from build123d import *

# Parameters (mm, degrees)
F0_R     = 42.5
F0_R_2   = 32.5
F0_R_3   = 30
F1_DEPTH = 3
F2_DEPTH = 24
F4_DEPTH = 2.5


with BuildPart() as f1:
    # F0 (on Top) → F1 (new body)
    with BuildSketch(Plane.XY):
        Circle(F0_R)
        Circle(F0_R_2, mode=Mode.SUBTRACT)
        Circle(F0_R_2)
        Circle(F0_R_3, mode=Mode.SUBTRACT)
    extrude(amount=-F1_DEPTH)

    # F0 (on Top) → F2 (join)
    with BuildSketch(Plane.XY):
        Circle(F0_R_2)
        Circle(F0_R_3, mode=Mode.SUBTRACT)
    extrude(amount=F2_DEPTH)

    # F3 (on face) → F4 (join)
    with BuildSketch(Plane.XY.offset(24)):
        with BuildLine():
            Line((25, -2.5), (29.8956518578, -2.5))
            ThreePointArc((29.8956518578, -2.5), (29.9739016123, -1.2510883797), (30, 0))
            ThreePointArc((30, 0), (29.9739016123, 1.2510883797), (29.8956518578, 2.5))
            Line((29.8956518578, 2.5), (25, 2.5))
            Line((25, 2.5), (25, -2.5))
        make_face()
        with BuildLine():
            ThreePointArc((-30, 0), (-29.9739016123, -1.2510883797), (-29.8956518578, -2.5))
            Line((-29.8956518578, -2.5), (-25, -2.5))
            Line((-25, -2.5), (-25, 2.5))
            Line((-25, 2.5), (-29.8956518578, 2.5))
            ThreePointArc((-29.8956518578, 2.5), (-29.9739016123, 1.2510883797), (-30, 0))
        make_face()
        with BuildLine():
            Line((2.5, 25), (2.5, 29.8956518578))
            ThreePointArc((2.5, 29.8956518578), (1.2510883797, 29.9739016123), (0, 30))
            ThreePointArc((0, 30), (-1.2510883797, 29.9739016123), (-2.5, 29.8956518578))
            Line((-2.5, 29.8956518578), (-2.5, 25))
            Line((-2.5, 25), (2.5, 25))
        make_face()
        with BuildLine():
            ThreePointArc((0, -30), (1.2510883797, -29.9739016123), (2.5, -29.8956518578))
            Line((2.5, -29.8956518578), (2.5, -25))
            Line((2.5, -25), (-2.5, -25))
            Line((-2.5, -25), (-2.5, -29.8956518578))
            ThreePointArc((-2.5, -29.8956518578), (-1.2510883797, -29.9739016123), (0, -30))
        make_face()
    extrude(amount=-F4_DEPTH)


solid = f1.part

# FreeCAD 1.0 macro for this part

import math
import FreeCAD as App
import Part
import Sketcher
Q = App.Units.Quantity

doc = App.newDocument("Part")
params = doc.addObject("Spreadsheet::Sheet", "Params")
for row, (alias, value) in enumerate([
    ("sketch1_diameter", "85 mm"),
    ("sketch1_diameter2", "60 mm"),
    ("pad1_length", "3 mm"),
    ("sketch2_diameter", "65 mm"),
    ("sketch2_diameter2", "60 mm"),
    ("pad2_length", "24 mm"),
    ("sketch3_radius", "30 mm"),
    ("sketch3_width", "5 mm"),
    ("pad3_length", "2.5 mm"),
], start=1):
    params.set(f"A{row}", alias)
    params.set(f"B{row}", "=" + value)
    params.setAlias(f"B{row}", alias)

body = doc.addObject("PartDesign::Body", "Body")

sketch1 = body.newObject("Sketcher::SketchObject", "Sketch")
sketch1.AttachmentSupport = (doc.getObject("XY_Plane"), [""])
sketch1.MapMode = "FlatFace"
sketch1.addGeometry(Part.Circle(App.Vector(0, 0, 0), App.Vector(0, 0, 1), 42.5), False)
sketch1.addGeometry(Part.Circle(App.Vector(0, 0, 0), App.Vector(0, 0, 1), 30), False)
sketch1.addConstraint(Sketcher.Constraint("Coincident", 0, 3, -1, 1))
sketch1.addConstraint(Sketcher.Constraint("Coincident", 1, 3, -1, 1))
sketch1.addConstraint(Sketcher.Constraint("Diameter", 0, Q("85 mm")))
sketch1.addConstraint(Sketcher.Constraint("Diameter", 1, Q("60 mm")))
sketch1.setExpression("Constraints[2]", "Params.sketch1_diameter")
sketch1.setExpression("Constraints[3]", "Params.sketch1_diameter2")
pad1 = body.newObject("PartDesign::Pad", "Pad")
pad1.Profile = sketch1
pad1.setExpression("Length", "Params.pad1_length")
pad1.Reversed = True

sketch2 = body.newObject("Sketcher::SketchObject", "Sketch001")
sketch2.AttachmentSupport = (doc.getObject("XY_Plane"), [""])
sketch2.MapMode = "FlatFace"
sketch2.addGeometry(Part.Circle(App.Vector(0, 0, 0), App.Vector(0, 0, 1), 32.5), False)
sketch2.addGeometry(Part.Circle(App.Vector(0, 0, 0), App.Vector(0, 0, 1), 30), False)
sketch2.addConstraint(Sketcher.Constraint("Coincident", 0, 3, -1, 1))
sketch2.addConstraint(Sketcher.Constraint("Coincident", 1, 3, -1, 1))
sketch2.addConstraint(Sketcher.Constraint("Diameter", 0, Q("65 mm")))
sketch2.addConstraint(Sketcher.Constraint("Diameter", 1, Q("60 mm")))
sketch2.setExpression("Constraints[2]", "Params.sketch2_diameter")
sketch2.setExpression("Constraints[3]", "Params.sketch2_diameter2")
pad2 = body.newObject("PartDesign::Pad", "Pad001")
pad2.Profile = sketch2
pad2.setExpression("Length", "Params.pad2_length")

sketch3 = body.newObject("Sketcher::SketchObject", "Sketch002")
sketch3.AttachmentSupport = (doc.getObject("XY_Plane"), [""])
sketch3.MapMode = "FlatFace"
sketch3.AttachmentOffset = App.Placement(App.Vector(0, 0, 24), App.Rotation())
sketch3.addGeometry(Part.LineSegment(App.Vector(25, -2.5, 0), App.Vector(29.895652, -2.5, 0)), False)
sketch3.addGeometry(Part.ArcOfCircle(Part.Circle(App.Vector(0, 0, 0), App.Vector(0, 0, 1), 30), math.radians(-4.780192), math.radians(0)), False)
sketch3.addGeometry(Part.ArcOfCircle(Part.Circle(App.Vector(0, 0, 0), App.Vector(0, 0, 1), 30), math.radians(0), math.radians(4.780192)), False)
sketch3.addGeometry(Part.LineSegment(App.Vector(29.895652, 2.5, 0), App.Vector(25, 2.5, 0)), False)
sketch3.addGeometry(Part.LineSegment(App.Vector(25, 2.5, 0), App.Vector(25, -2.5, 0)), False)
sketch3.addGeometry(Part.ArcOfCircle(Part.Circle(App.Vector(0, 0, 0), App.Vector(0, 0, 1), 30), math.radians(-180), math.radians(-175.219808)), False)
sketch3.addGeometry(Part.LineSegment(App.Vector(-29.895652, -2.5, 0), App.Vector(-25, -2.5, 0)), False)
sketch3.addGeometry(Part.LineSegment(App.Vector(-25, -2.5, 0), App.Vector(-25, 2.5, 0)), False)
sketch3.addGeometry(Part.LineSegment(App.Vector(-25, 2.5, 0), App.Vector(-29.895652, 2.5, 0)), False)
sketch3.addGeometry(Part.ArcOfCircle(Part.Circle(App.Vector(0, 0, 0), App.Vector(0, 0, 1), 30), math.radians(175.219808), math.radians(180)), False)
sketch3.addGeometry(Part.LineSegment(App.Vector(2.5, 25, 0), App.Vector(2.5, 29.895652, 0)), False)
sketch3.addGeometry(Part.ArcOfCircle(Part.Circle(App.Vector(0, 0, 0), App.Vector(0, 0, 1), 30), math.radians(85.219808), math.radians(90)), False)
sketch3.addGeometry(Part.ArcOfCircle(Part.Circle(App.Vector(0, 0, 0), App.Vector(0, 0, 1), 30), math.radians(90), math.radians(94.780192)), False)
sketch3.addGeometry(Part.LineSegment(App.Vector(-2.5, 29.895652, 0), App.Vector(-2.5, 25, 0)), False)
sketch3.addGeometry(Part.LineSegment(App.Vector(-2.5, 25, 0), App.Vector(2.5, 25, 0)), False)
sketch3.addGeometry(Part.ArcOfCircle(Part.Circle(App.Vector(0, 0, 0), App.Vector(0, 0, 1), 30), math.radians(-90), math.radians(-85.219808)), False)
sketch3.addGeometry(Part.LineSegment(App.Vector(2.5, -29.895652, 0), App.Vector(2.5, -25, 0)), False)
sketch3.addGeometry(Part.LineSegment(App.Vector(2.5, -25, 0), App.Vector(-2.5, -25, 0)), False)
sketch3.addGeometry(Part.LineSegment(App.Vector(-2.5, -25, 0), App.Vector(-2.5, -29.895652, 0)), False)
sketch3.addGeometry(Part.ArcOfCircle(Part.Circle(App.Vector(0, 0, 0), App.Vector(0, 0, 1), 30), math.radians(-94.780192), math.radians(-90)), False)
sketch3.addConstraint(Sketcher.Constraint("Coincident", 0, 2, 1, 1))
sketch3.addConstraint(Sketcher.Constraint("Tangent", 1, 2, 2, 1))
sketch3.addConstraint(Sketcher.Constraint("Coincident", 2, 2, 3, 1))
sketch3.addConstraint(Sketcher.Constraint("Coincident", 3, 2, 4, 1))
sketch3.addConstraint(Sketcher.Constraint("Coincident", 4, 2, 0, 1))
sketch3.addConstraint(Sketcher.Constraint("Coincident", 5, 2, 6, 1))
sketch3.addConstraint(Sketcher.Constraint("Coincident", 6, 2, 7, 1))
sketch3.addConstraint(Sketcher.Constraint("Coincident", 7, 2, 8, 1))
sketch3.addConstraint(Sketcher.Constraint("Coincident", 8, 2, 9, 1))
sketch3.addConstraint(Sketcher.Constraint("Tangent", 9, 2, 5, 1))
sketch3.addConstraint(Sketcher.Constraint("Coincident", 10, 2, 11, 1))
sketch3.addConstraint(Sketcher.Constraint("Tangent", 11, 2, 12, 1))
sketch3.addConstraint(Sketcher.Constraint("Coincident", 12, 2, 13, 1))
sketch3.addConstraint(Sketcher.Constraint("Coincident", 13, 2, 14, 1))
sketch3.addConstraint(Sketcher.Constraint("Coincident", 14, 2, 10, 1))
sketch3.addConstraint(Sketcher.Constraint("Coincident", 15, 2, 16, 1))
sketch3.addConstraint(Sketcher.Constraint("Coincident", 16, 2, 17, 1))
sketch3.addConstraint(Sketcher.Constraint("Coincident", 17, 2, 18, 1))
sketch3.addConstraint(Sketcher.Constraint("Coincident", 18, 2, 19, 1))
sketch3.addConstraint(Sketcher.Constraint("Tangent", 19, 2, 15, 1))
sketch3.addConstraint(Sketcher.Constraint("Horizontal", 0))
sketch3.addConstraint(Sketcher.Constraint("Horizontal", 3))
sketch3.addConstraint(Sketcher.Constraint("Vertical", 4))
sketch3.addConstraint(Sketcher.Constraint("Horizontal", 6))
sketch3.addConstraint(Sketcher.Constraint("Vertical", 7))
sketch3.addConstraint(Sketcher.Constraint("Horizontal", 8))
sketch3.addConstraint(Sketcher.Constraint("Vertical", 10))
sketch3.addConstraint(Sketcher.Constraint("Vertical", 13))
sketch3.addConstraint(Sketcher.Constraint("Horizontal", 14))
sketch3.addConstraint(Sketcher.Constraint("Vertical", 16))
sketch3.addConstraint(Sketcher.Constraint("Horizontal", 17))
sketch3.addConstraint(Sketcher.Constraint("Vertical", 18))
sketch3.addConstraint(Sketcher.Constraint("Coincident", 1, 3, -1, 1))
sketch3.addConstraint(Sketcher.Constraint("Coincident", 5, 3, -1, 1))
sketch3.addConstraint(Sketcher.Constraint("Coincident", 11, 3, -1, 1))
sketch3.addConstraint(Sketcher.Constraint("Coincident", 15, 3, -1, 1))
sketch3.addConstraint(Sketcher.Constraint("Equal", 1, 2))
sketch3.addConstraint(Sketcher.Constraint("Equal", 2, 5))
sketch3.addConstraint(Sketcher.Constraint("Equal", 5, 9))
sketch3.addConstraint(Sketcher.Constraint("Equal", 9, 11))
sketch3.addConstraint(Sketcher.Constraint("Equal", 11, 12))
sketch3.addConstraint(Sketcher.Constraint("Equal", 12, 15))
sketch3.addConstraint(Sketcher.Constraint("Equal", 15, 19))
sketch3.addConstraint(Sketcher.Constraint("Symmetric", 3, 2, 6, 2, -1, 1))
sketch3.addConstraint(Sketcher.Constraint("Symmetric", 13, 2, 16, 2, -1, 1))
sketch3.addConstraint(Sketcher.Constraint("PointOnObject", 1, 2, -1))
sketch3.addConstraint(Sketcher.Constraint("PointOnObject", 9, 2, -1))
sketch3.addConstraint(Sketcher.Constraint("PointOnObject", 11, 2, -2))
sketch3.addConstraint(Sketcher.Constraint("PointOnObject", 19, 2, -2))
sketch3.addConstraint(Sketcher.Constraint("Horizontal", 4, 2, 5, 2))
sketch3.addConstraint(Sketcher.Constraint("Horizontal", 3, 2, 7, 2))
sketch3.addConstraint(Sketcher.Constraint("Horizontal", 10, 2, 12, 2))
sketch3.addConstraint(Sketcher.Constraint("Horizontal", 15, 2, 18, 2))
sketch3.addConstraint(Sketcher.Constraint("Equal", 17, 4))
sketch3.addConstraint(Sketcher.Constraint("Equal", 8, 10))
sketch3.addConstraint(Sketcher.Constraint("Radius", 1, Q("30 mm")))
sketch3.addConstraint(Sketcher.Constraint("DistanceX", 14, 1, 14, 2, Q("5 mm")))
sketch3.addConstraint(Sketcher.Constraint("DistanceX", -1, 1, 3, 2, Q("25 mm")))
sketch3.setExpression("Constraints[55]", "Params.sketch3_radius")
sketch3.setExpression("Constraints[56]", "Params.sketch3_width")
pad3 = body.newObject("PartDesign::Pad", "Pad002")
pad3.Profile = sketch3
pad3.setExpression("Length", "Params.pad3_length")
pad3.Reversed = True

doc.recompute()
